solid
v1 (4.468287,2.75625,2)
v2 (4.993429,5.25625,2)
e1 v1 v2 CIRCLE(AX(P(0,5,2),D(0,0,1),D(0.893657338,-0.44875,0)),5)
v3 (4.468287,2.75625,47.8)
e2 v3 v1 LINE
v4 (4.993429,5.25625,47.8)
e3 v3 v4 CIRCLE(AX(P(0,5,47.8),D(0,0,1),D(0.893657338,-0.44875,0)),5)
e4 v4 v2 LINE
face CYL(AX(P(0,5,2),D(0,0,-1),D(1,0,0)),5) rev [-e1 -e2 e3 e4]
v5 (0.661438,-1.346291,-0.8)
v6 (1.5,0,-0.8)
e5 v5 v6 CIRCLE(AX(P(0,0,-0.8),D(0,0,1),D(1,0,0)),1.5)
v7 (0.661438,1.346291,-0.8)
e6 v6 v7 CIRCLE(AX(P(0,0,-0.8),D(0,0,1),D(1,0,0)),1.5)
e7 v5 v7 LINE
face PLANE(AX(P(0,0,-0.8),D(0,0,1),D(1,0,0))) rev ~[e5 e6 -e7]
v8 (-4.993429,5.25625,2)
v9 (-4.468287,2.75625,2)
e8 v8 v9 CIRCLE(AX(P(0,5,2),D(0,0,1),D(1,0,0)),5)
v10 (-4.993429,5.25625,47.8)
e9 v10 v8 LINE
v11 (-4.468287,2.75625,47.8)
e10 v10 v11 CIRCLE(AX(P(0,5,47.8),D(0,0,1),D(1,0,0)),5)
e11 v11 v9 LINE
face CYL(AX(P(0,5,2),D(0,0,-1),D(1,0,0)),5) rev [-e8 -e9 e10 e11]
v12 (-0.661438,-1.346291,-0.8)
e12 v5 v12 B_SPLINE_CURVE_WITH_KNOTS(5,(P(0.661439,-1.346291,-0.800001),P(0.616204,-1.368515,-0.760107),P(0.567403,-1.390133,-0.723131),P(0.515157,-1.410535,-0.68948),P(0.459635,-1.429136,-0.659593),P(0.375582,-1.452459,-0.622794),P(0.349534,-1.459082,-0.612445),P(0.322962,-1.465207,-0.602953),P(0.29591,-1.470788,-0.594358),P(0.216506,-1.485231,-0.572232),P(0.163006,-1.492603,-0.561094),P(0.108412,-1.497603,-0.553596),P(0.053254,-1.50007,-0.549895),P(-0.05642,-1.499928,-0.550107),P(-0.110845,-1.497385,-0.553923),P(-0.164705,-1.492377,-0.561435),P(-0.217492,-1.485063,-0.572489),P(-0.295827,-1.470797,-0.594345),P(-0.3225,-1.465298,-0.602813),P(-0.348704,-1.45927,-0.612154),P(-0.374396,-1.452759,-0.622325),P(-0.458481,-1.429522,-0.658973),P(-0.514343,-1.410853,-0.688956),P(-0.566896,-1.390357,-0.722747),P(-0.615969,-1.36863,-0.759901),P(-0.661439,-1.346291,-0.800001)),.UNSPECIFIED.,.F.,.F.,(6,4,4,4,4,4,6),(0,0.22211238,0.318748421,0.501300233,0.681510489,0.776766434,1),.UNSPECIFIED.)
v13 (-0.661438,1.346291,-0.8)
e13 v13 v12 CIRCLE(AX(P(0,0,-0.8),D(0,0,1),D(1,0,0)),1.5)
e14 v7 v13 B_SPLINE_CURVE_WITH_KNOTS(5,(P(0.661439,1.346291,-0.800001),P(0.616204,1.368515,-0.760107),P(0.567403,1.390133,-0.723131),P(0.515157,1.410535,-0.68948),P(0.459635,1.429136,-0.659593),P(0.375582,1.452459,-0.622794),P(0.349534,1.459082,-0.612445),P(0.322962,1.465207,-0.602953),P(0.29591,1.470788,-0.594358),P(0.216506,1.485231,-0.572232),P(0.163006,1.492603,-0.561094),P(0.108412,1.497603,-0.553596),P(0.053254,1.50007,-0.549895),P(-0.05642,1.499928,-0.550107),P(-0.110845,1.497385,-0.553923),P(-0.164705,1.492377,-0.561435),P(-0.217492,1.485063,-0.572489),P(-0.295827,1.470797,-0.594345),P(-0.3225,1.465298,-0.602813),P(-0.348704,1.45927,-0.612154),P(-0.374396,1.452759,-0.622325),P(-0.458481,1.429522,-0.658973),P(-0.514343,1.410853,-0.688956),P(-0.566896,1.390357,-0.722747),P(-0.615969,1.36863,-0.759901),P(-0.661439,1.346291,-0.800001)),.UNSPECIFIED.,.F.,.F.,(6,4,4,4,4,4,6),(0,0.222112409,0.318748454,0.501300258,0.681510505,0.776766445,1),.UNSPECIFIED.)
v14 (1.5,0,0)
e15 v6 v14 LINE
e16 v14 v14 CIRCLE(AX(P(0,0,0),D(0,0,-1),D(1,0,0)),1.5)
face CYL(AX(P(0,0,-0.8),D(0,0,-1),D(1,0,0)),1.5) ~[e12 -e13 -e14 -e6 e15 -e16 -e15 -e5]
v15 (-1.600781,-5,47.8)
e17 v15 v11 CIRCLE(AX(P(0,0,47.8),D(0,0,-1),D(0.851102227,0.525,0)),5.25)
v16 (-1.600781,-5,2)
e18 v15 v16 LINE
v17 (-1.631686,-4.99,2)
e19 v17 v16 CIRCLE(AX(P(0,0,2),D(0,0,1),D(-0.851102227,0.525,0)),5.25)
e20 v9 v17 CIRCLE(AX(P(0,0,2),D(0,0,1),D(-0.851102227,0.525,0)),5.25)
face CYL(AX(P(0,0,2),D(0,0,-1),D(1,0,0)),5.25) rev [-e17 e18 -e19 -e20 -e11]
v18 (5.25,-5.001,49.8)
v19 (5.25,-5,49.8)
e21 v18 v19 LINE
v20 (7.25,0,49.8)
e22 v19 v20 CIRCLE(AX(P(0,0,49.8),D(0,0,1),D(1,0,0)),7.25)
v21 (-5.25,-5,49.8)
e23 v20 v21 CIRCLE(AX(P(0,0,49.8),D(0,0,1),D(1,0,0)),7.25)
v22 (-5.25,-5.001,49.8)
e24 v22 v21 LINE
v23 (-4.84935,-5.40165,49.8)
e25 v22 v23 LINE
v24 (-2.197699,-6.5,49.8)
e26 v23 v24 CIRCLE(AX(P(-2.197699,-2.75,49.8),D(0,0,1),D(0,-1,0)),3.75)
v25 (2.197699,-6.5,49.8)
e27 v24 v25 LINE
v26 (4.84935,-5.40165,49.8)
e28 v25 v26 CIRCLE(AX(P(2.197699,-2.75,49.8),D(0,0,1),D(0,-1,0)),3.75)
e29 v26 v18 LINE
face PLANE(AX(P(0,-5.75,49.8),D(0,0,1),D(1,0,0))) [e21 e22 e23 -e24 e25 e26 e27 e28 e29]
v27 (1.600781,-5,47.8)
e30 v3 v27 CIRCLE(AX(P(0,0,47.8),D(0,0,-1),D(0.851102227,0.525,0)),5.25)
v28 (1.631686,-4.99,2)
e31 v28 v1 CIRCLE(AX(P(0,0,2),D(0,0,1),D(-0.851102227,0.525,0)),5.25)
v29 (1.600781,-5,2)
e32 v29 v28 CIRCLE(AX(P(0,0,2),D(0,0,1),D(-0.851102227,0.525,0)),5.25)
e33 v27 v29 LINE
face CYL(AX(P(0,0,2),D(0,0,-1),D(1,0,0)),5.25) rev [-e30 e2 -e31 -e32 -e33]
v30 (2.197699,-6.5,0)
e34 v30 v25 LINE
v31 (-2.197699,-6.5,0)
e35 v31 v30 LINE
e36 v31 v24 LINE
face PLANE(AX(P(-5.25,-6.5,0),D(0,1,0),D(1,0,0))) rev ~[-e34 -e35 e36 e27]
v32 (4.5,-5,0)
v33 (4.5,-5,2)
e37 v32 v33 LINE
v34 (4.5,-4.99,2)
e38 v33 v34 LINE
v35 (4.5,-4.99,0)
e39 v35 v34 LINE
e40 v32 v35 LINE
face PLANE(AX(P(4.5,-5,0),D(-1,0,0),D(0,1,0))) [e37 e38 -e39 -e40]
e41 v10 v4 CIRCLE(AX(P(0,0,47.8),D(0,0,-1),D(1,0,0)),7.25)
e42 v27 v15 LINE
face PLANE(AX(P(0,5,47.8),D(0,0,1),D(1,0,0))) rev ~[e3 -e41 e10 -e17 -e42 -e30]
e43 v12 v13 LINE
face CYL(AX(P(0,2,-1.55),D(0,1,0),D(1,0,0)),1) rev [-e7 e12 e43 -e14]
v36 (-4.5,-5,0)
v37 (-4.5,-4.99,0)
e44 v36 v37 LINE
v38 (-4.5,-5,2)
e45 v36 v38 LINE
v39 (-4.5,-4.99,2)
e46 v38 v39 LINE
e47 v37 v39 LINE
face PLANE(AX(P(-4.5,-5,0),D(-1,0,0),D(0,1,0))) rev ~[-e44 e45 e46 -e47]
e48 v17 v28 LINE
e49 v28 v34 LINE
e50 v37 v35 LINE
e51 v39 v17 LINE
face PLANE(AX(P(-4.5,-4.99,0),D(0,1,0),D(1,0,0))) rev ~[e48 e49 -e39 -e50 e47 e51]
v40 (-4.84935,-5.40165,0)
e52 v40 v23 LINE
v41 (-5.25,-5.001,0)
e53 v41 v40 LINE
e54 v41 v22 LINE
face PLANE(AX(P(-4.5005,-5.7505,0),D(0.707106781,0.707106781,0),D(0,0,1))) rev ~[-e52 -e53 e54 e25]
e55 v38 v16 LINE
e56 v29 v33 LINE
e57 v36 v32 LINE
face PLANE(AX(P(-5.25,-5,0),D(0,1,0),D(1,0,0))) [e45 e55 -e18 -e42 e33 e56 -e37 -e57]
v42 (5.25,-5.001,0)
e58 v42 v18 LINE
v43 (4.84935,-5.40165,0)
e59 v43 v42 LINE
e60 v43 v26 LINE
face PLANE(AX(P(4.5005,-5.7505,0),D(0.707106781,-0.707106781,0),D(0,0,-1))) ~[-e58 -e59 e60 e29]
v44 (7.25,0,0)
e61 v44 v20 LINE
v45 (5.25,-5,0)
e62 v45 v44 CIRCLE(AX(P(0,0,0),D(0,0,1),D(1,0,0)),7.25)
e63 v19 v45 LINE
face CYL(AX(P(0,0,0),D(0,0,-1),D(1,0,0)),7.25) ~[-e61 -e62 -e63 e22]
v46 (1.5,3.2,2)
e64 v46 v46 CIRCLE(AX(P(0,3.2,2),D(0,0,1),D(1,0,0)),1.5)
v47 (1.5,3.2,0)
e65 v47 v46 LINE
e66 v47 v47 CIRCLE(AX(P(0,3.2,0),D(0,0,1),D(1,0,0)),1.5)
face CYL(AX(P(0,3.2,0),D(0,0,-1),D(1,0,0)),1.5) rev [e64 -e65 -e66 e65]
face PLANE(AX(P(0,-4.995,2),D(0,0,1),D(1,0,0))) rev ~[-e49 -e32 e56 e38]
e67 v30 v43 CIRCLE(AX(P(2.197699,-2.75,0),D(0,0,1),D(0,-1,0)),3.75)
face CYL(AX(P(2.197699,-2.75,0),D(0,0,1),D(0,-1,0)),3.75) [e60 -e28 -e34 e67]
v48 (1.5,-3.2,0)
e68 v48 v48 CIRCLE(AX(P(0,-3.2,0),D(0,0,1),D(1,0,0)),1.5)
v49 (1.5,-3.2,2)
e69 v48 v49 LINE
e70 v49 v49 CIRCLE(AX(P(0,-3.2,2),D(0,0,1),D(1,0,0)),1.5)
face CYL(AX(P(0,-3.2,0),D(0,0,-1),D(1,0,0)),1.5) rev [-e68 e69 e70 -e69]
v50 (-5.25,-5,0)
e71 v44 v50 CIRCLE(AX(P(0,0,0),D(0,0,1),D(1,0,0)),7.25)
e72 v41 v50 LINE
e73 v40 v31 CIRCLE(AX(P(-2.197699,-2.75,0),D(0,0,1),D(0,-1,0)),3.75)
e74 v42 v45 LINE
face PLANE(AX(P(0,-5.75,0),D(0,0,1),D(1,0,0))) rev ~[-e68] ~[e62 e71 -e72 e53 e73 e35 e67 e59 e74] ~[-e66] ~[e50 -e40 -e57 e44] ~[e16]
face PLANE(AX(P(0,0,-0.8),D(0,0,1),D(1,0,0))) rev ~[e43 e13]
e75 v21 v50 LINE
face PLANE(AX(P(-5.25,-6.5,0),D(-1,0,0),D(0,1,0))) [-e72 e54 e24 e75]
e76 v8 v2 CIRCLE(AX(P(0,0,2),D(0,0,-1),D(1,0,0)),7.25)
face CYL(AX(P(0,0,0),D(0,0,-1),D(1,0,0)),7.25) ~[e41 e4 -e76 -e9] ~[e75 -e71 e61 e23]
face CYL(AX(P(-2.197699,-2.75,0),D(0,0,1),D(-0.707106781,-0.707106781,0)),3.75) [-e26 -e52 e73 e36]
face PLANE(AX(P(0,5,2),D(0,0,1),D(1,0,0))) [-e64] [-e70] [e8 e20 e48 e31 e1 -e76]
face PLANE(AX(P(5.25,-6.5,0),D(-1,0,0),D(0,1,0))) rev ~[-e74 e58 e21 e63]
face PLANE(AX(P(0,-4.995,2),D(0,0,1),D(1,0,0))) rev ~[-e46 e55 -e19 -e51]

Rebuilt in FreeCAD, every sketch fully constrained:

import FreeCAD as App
import Part
import Sketcher
from FreeCAD import Vector
Q = App.Units.Quantity


def edges_at(feature, points):
    """Names of the edges that pass closest to the given points."""
    edges = feature.Shape.Edges
    near = lambda p: min(range(len(edges)), key=lambda i: edges[i].distToShape(Part.Vertex(*p))[0])
    return sorted({f"Edge{near(p) + 1}" for p in points})

doc = App.newDocument("Part")
params = doc.addObject("Spreadsheet::Sheet", "Params")
for row, (alias, value) in enumerate([
    ("sketch1_diameter", "14.5 mm"),
    ("pad1_length", "49.8 mm"),
    ("sketch2_diameter", "3 mm"),
    ("pad2_length", "1 mm"),
    ("sketch3_diameter", "10.5 mm"),
    ("pocket1_length", "45.8 mm"),
    ("sketch4_diameter", "10 mm"),
    ("pocket2_length", "45.8 mm"),
    ("sketch5_width", "9 mm"),
    ("sketch5_height", "0.01 mm"),
    ("pocket3_length", "2 mm"),
    ("sketch6_width", "9 mm"),
    ("sketch6_height", "3 mm"),
    ("pocket4_length", "8 mm"),
    ("sketch7_width", "15 mm"),
    ("sketch7_height", "10 mm"),
    ("pocket5_length", "49.8 mm"),
    ("sketch8_width", "10.5 mm"),
    ("sketch8_height", "1.5 mm"),
    ("pad3_length", "49.8 mm"),
    ("chamfer_size", "1.499 mm"),
    ("fillet_radius", "3.75 mm"),
    ("sketch9_height", "0.1 mm"),
    ("sketch9_width", "2.75 mm"),
    ("pad4_length", "5 mm"),
    ("sketch10_height", "0.1 mm"),
    ("sketch10_width", "2.75 mm"),
    ("pad5_length", "5 mm"),
    ("sketch11_diameter", "2 mm"),
    ("pocket6_length", "4 mm"),
    ("sketch12_diameter", "3 mm"),
    ("pocket7_length", "2 mm"),
    ("sketch13_diameter", "3 mm"),
    ("pocket8_length", "2 mm"),
], start=1):
    params.set(f"A{row}", alias)
    params.set(f"B{row}", "=" + value)
    params.setAlias(f"B{row}", alias)

body = doc.addObject("PartDesign::Body", "Body")

# Sketch on XY plane
sketch1 = body.newObject("Sketcher::SketchObject", "Sketch")
sketch1.AttachmentSupport = (doc.getObject("XY_Plane"), [""])
sketch1.MapMode = "FlatFace"
sketch1.addGeometry(Part.Circle(Vector(0, 0, 0), Vector(0, 0, 1), 7), False)
sketch1.addConstraint([
    Sketcher.Constraint("Coincident", 0, 3, -1, 1),
    Sketcher.Constraint("Diameter", 0, Q("14.5 mm")),
])
sketch1.setExpression("Constraints[1]", "Params.sketch1_diameter")
pad1 = body.newObject("PartDesign::Pad", "Pad")
pad1.Profile = sketch1
pad1.setExpression("Length", "Params.pad1_length")

# Sketch on XY plane
sketch2 = body.newObject("Sketcher::SketchObject", "Sketch001")
sketch2.AttachmentSupport = (doc.getObject("XY_Plane"), [""])
sketch2.MapMode = "FlatFace"
sketch2.AttachmentOffset = App.Placement(Vector(0, 0, -0.8), App.Rotation())
sketch2.addGeometry(Part.Circle(Vector(0, 0, 0), Vector(0, 0, 1), 1.5), False)
sketch2.addConstraint([
    Sketcher.Constraint("Coincident", 0, 3, -1, 1),
    Sketcher.Constraint("Diameter", 0, Q("3 mm")),
])
sketch2.setExpression("Constraints[1]", "Params.sketch2_diameter")
pad2 = body.newObject("PartDesign::Pad", "Pad001")
pad2.Profile = sketch2
pad2.setExpression("Length", "Params.pad2_length")

# Sketch on XY plane
sketch3 = body.newObject("Sketcher::SketchObject", "Sketch002")
sketch3.AttachmentSupport = (doc.getObject("XY_Plane"), [""])
sketch3.MapMode = "FlatFace"
sketch3.AttachmentOffset = App.Placement(Vector(0, 0, 2), App.Rotation())
sketch3.addGeometry(Part.Circle(Vector(0, 0, 0), Vector(0, 0, 1), 5), False)
sketch3.addConstraint([
    Sketcher.Constraint("Coincident", 0, 3, -1, 1),
    Sketcher.Constraint("Diameter", 0, Q("10.5 mm")),
])
sketch3.setExpression("Constraints[1]", "Params.sketch3_diameter")
pocket1 = body.newObject("PartDesign::Pocket", "Pocket")
pocket1.Profile = sketch3
pocket1.setExpression("Length", "Params.pocket1_length")
pocket1.Reversed = True

# Sketch on XY plane
sketch4 = body.newObject("Sketcher::SketchObject", "Sketch003")
sketch4.AttachmentSupport = (doc.getObject("XY_Plane"), [""])
sketch4.MapMode = "FlatFace"
sketch4.AttachmentOffset = App.Placement(Vector(0, 0, 2), App.Rotation())
sketch4.addGeometry(Part.Circle(Vector(0, 5, 0), Vector(0, 0, 1), 5), False)
sketch4.addConstraint([
    Sketcher.Constraint("PointOnObject", 0, 3, -2),
    Sketcher.Constraint("Diameter", 0, Q("10 mm")),
    Sketcher.Constraint("DistanceY", -1, 1, 0, 3, Q("5 mm")),
])
sketch4.setExpression("Constraints[1]", "Params.sketch4_diameter")
pocket2 = body.newObject("PartDesign::Pocket", "Pocket001")
pocket2.Profile = sketch4
pocket2.setExpression("Length", "Params.pocket2_length")
pocket2.Reversed = True

# Sketch on XY plane
sketch5 = body.newObject("Sketcher::SketchObject", "Sketch004")
sketch5.AttachmentSupport = (doc.getObject("XY_Plane"), [""])
sketch5.MapMode = "FlatFace"
sketch5.addGeometry([
    Part.LineSegment(Vector(-4.5, -4.99, 0), Vector(-4.5, -5, 0)),
    Part.LineSegment(Vector(-4.5, -5, 0), Vector(4.5, -5, 0)),
    Part.LineSegment(Vector(4.5, -5, 0), Vector(4.5, -4.99, 0)),
    Part.LineSegment(Vector(4.5, -4.99, 0), Vector(-4.5, -4.99, 0)),
], False)
sketch5.addConstraint([
    Sketcher.Constraint("Coincident", 0, 2, 1, 1),
    Sketcher.Constraint("Coincident", 1, 2, 2, 1),
    Sketcher.Constraint("Coincident", 2, 2, 3, 1),
    Sketcher.Constraint("Coincident", 3, 2, 0, 1),
    Sketcher.Constraint("Vertical", 0),
    Sketcher.Constraint("Horizontal", 1),
    Sketcher.Constraint("Vertical", 2),
    Sketcher.Constraint("Horizontal", 3),
    Sketcher.Constraint("DistanceX", 1, 1, 1, 2, Q("9 mm")),
    Sketcher.Constraint("DistanceY", 0, 2, -1, 1, Q("5 mm")),
    Sketcher.Constraint("DistanceY", 0, 2, 0, 1, Q("0.01 mm")),
    Sketcher.Constraint("DistanceX", 0, 2, -1, 1, Q("4.5 mm")),
])
sketch5.setExpression("Constraints[8]", "Params.sketch5_width")
sketch5.setExpression("Constraints[10]", "Params.sketch5_height")
pocket3 = body.newObject("PartDesign::Pocket", "Pocket002")
pocket3.Profile = sketch5
pocket3.setExpression("Length", "Params.pocket3_length")
pocket3.Reversed = True

# Sketch on XY plane
sketch6 = body.newObject("Sketcher::SketchObject", "Sketch005")
sketch6.AttachmentSupport = (doc.getObject("XY_Plane"), [""])
sketch6.MapMode = "FlatFace"
sketch6.AttachmentOffset = App.Placement(Vector(0, 0, 2), App.Rotation())
sketch6.addGeometry([
    Part.LineSegment(Vector(-4.5, 1, 0), Vector(-4.5, -2, 0)),
    Part.LineSegment(Vector(-4.5, -2, 0), Vector(4.5, -2, 0)),
    Part.LineSegment(Vector(4.5, -2, 0), Vector(4.5, 1, 0)),
    Part.LineSegment(Vector(4.5, 1, 0), Vector(-4.5, 1, 0)),
], False)
sketch6.addConstraint([
    Sketcher.Constraint("Coincident", 0, 2, 1, 1),
    Sketcher.Constraint("Coincident", 1, 2, 2, 1),
    Sketcher.Constraint("Coincident", 2, 2, 3, 1),
    Sketcher.Constraint("Coincident", 3, 2, 0, 1),
    Sketcher.Constraint("Vertical", 0),
    Sketcher.Constraint("Horizontal", 1),
    Sketcher.Constraint("Vertical", 2),
    Sketcher.Constraint("Horizontal", 3),
    Sketcher.Constraint("DistanceX", 1, 1, 1, 2, Q("9 mm")),
    Sketcher.Constraint("DistanceY", 0, 2, 0, 1, Q("3 mm")),
    Sketcher.Constraint("DistanceY", 0, 2, -1, 1, Q("2 mm")),
    Sketcher.Constraint("DistanceX", 0, 2, -1, 1, Q("4.5 mm")),
])
sketch6.setExpression("Constraints[8]", "Params.sketch6_width")
sketch6.setExpression("Constraints[9]", "Params.sketch6_height")
pocket4 = body.newObject("PartDesign::Pocket", "Pocket003")
pocket4.Profile = sketch6
pocket4.setExpression("Length", "Params.pocket4_length")
pocket4.Reversed = True

# Sketch on XY plane
sketch7 = body.newObject("Sketcher::SketchObject", "Sketch006")
sketch7.AttachmentSupport = (doc.getObject("XY_Plane"), [""])
sketch7.MapMode = "FlatFace"
sketch7.addGeometry([
    Part.LineSegment(Vector(-8, -5, 0), Vector(-8, -15, 0)),
    Part.LineSegment(Vector(-8, -15, 0), Vector(8, -15, 0)),
    Part.LineSegment(Vector(8, -15, 0), Vector(8, -5, 0)),
    Part.LineSegment(Vector(8, -5, 0), Vector(-8, -5, 0)),
], False)
sketch7.addConstraint([
    Sketcher.Constraint("Coincident", 0, 2, 1, 1),
    Sketcher.Constraint("Coincident", 1, 2, 2, 1),
    Sketcher.Constraint("Coincident", 2, 2, 3, 1),
    Sketcher.Constraint("Coincident", 3, 2, 0, 1),
    Sketcher.Constraint("Vertical", 0),
    Sketcher.Constraint("Horizontal", 1),
    Sketcher.Constraint("Vertical", 2),
    Sketcher.Constraint("Horizontal", 3),
    Sketcher.Constraint("DistanceX", 1, 1, 1, 2, Q("15 mm")),
    Sketcher.Constraint("DistanceY", 0, 2, 0, 1, Q("10 mm")),
    Sketcher.Constraint("DistanceY", 0, 2, -1, 1, Q("15 mm")),
    Sketcher.Constraint("DistanceX", 0, 2, -1, 1, Q("7.5 mm")),
])
sketch7.setExpression("Constraints[8]", "Params.sketch7_width")
sketch7.setExpression("Constraints[9]", "Params.sketch7_height")
pocket5 = body.newObject("PartDesign::Pocket", "Pocket004")
pocket5.Profile = sketch7
pocket5.setExpression("Length", "Params.pocket5_length")
pocket5.Reversed = True

# Sketch on XY plane
sketch8 = body.newObject("Sketcher::SketchObject", "Sketch007")
sketch8.AttachmentSupport = (doc.getObject("XY_Plane"), [""])
sketch8.MapMode = "FlatFace"
sketch8.addGeometry([
    Part.LineSegment(Vector(-5.2, -5, 0), Vector(-5.2, -6.5, 0)),
    Part.LineSegment(Vector(-5.2, -6.5, 0), Vector(5.2, -6.5, 0)),
    Part.LineSegment(Vector(5.2, -6.5, 0), Vector(5.2, -5, 0)),
    Part.LineSegment(Vector(5.2, -5, 0), Vector(-5.2, -5, 0)),
], False)
sketch8.addConstraint([
    Sketcher.Constraint("Coincident", 0, 2, 1, 1),
    Sketcher.Constraint("Coincident", 1, 2, 2, 1),
    Sketcher.Constraint("Coincident", 2, 2, 3, 1),
    Sketcher.Constraint("Coincident", 3, 2, 0, 1),
    Sketcher.Constraint("Vertical", 0),
    Sketcher.Constraint("Horizontal", 1),
    Sketcher.Constraint("Vertical", 2),
    Sketcher.Constraint("Horizontal", 3),
    Sketcher.Constraint("DistanceX", 1, 1, 1, 2, Q("10.5 mm")),
    Sketcher.Constraint("DistanceY", 0, 2, 0, 1, Q("1.5 mm")),
    Sketcher.Constraint("DistanceY", 2, 2, -1, 1, Q("5 mm")),
    Sketcher.Constraint("DistanceX", 0, 2, -1, 1, Q("5.25 mm")),
])
sketch8.setExpression("Constraints[8]", "Params.sketch8_width")
sketch8.setExpression("Constraints[9]", "Params.sketch8_height")
pad3 = body.newObject("PartDesign::Pad", "Pad002")
pad3.Profile = sketch8
pad3.setExpression("Length", "Params.pad3_length")
doc.recompute()

chamfer = body.newObject("PartDesign::Chamfer", "Chamfer")
chamfer.Base = (pad3, edges_at(pad3, [(5.25, -6.5, 24.9), (-5.25, -6.5, 24.9)]))
chamfer.setExpression("Size", "Params.chamfer_size")
doc.recompute()

fillet = body.newObject("PartDesign::Fillet", "Fillet")
fillet.Base = (chamfer, edges_at(chamfer, [(3.751, -6.5, 24.9), (-3.751, -6.5, 24.9)]))
fillet.setExpression("Radius", "Params.fillet_radius")

# Sketch on XY plane
sketch9 = body.newObject("Sketcher::SketchObject", "Sketch008")
sketch9.AttachmentSupport = (doc.getObject("XY_Plane"), [""])
sketch9.MapMode = "FlatFace"
sketch9.AttachmentOffset = App.Placement(Vector(0, 0, 10), App.Rotation())
sketch9.addGeometry([
    Part.LineSegment(Vector(-5, -4.9, 0), Vector(-5, -5, 0)),
    Part.LineSegment(Vector(-5, -5, 0), Vector(-2.25, -5, 0)),
    Part.LineSegment(Vector(-2.25, -5, 0), Vector(-2.25, -4.9, 0)),
    Part.LineSegment(Vector(-2.25, -4.9, 0), Vector(-5, -4.9, 0)),
], False)
sketch9.addConstraint([
    Sketcher.Constraint("Coincident", 0, 2, 1, 1),
    Sketcher.Constraint("Coincident", 1, 2, 2, 1),
    Sketcher.Constraint("Coincident", 2, 2, 3, 1),
    Sketcher.Constraint("Coincident", 3, 2, 0, 1),
    Sketcher.Constraint("Vertical", 0),
    Sketcher.Constraint("Horizontal", 1),
    Sketcher.Constraint("Vertical", 2),
    Sketcher.Constraint("Horizontal", 3),
    Sketcher.Constraint("DistanceY", 0, 2, 0, 1, Q("0.1 mm")),
    Sketcher.Constraint("DistanceX", 0, 2, -1, 1, Q("5 mm")),
    Sketcher.Constraint("DistanceY", 0, 2, -1, 1, Q("5 mm")),
    Sketcher.Constraint("DistanceX", 1, 1, 1, 2, Q("2.75 mm")),
])
sketch9.setExpression("Constraints[8]", "Params.sketch9_height")
sketch9.setExpression("Constraints[11]", "Params.sketch9_width")
pad4 = body.newObject("PartDesign::Pad", "Pad003")
pad4.Profile = sketch9
pad4.setExpression("Length", "Params.pad4_length")

# Sketch on XY plane
sketch10 = body.newObject("Sketcher::SketchObject", "Sketch009")
sketch10.AttachmentSupport = (doc.getObject("XY_Plane"), [""])
sketch10.MapMode = "FlatFace"
sketch10.AttachmentOffset = App.Placement(Vector(0, 0, 10), App.Rotation())
sketch10.addGeometry([
    Part.LineSegment(Vector(2.25, -4.9, 0), Vector(2.25, -5, 0)),
    Part.LineSegment(Vector(2.25, -5, 0), Vector(5, -5, 0)),
    Part.LineSegment(Vector(5, -5, 0), Vector(5, -4.9, 0)),
    Part.LineSegment(Vector(5, -4.9, 0), Vector(2.25, -4.9, 0)),
], False)
sketch10.addConstraint([
    Sketcher.Constraint("Coincident", 0, 2, 1, 1),
    Sketcher.Constraint("Coincident", 1, 2, 2, 1),
    Sketcher.Constraint("Coincident", 2, 2, 3, 1),
    Sketcher.Constraint("Coincident", 3, 2, 0, 1),
    Sketcher.Constraint("Vertical", 0),
    Sketcher.Constraint("Horizontal", 1),
    Sketcher.Constraint("Vertical", 2),
    Sketcher.Constraint("Horizontal", 3),
    Sketcher.Constraint("DistanceY", 0, 2, 0, 1, Q("0.1 mm")),
    Sketcher.Constraint("DistanceY", 0, 2, -1, 1, Q("5 mm")),
    Sketcher.Constraint("DistanceX", -1, 1, 1, 2, Q("5 mm")),
    Sketcher.Constraint("DistanceX", 1, 1, 1, 2, Q("2.75 mm")),
])
sketch10.setExpression("Constraints[8]", "Params.sketch10_height")
sketch10.setExpression("Constraints[11]", "Params.sketch10_width")
pad5 = body.newObject("PartDesign::Pad", "Pad004")
pad5.Profile = sketch10
pad5.setExpression("Length", "Params.pad5_length")

# Sketch on XZ plane
sketch11 = body.newObject("Sketcher::SketchObject", "Sketch010")
sketch11.AttachmentSupport = (doc.getObject("XZ_Plane"), [""])
sketch11.MapMode = "FlatFace"
sketch11.AttachmentOffset = App.Placement(Vector(0, 0, -2), App.Rotation())
sketch11.addGeometry(Part.Circle(Vector(0, -1.6, 0), Vector(0, 0, 1), 1), False)
sketch11.addConstraint([
    Sketcher.Constraint("PointOnObject", 0, 3, -2),
    Sketcher.Constraint("Diameter", 0, Q("2 mm")),
    Sketcher.Constraint("DistanceY", 0, 3, -1, 1, Q("1.55 mm")),
])
sketch11.setExpression("Constraints[1]", "Params.sketch11_diameter")
pocket6 = body.newObject("PartDesign::Pocket", "Pocket005")
pocket6.Profile = sketch11
pocket6.setExpression("Length", "Params.pocket6_length")
pocket6.Reversed = True

# Sketch on XY plane
sketch12 = body.newObject("Sketcher::SketchObject", "Sketch011")
sketch12.AttachmentSupport = (doc.getObject("XY_Plane"), [""])
sketch12.MapMode = "FlatFace"
sketch12.addGeometry(Part.Circle(Vector(0, -3.2, 0), Vector(0, 0, 1), 1.5), False)
sketch12.addConstraint([
    Sketcher.Constraint("PointOnObject", 0, 3, -2),
    Sketcher.Constraint("Diameter", 0, Q("3 mm")),
    Sketcher.Constraint("DistanceY", 0, 3, -1, 1, Q("3.2 mm")),
])
sketch12.setExpression("Constraints[1]", "Params.sketch12_diameter")
pocket7 = body.newObject("PartDesign::Pocket", "Pocket006")
pocket7.Profile = sketch12
pocket7.setExpression("Length", "Params.pocket7_length")
pocket7.Reversed = True

# Sketch on XY plane
sketch13 = body.newObject("Sketcher::SketchObject", "Sketch012")
sketch13.AttachmentSupport = (doc.getObject("XY_Plane"), [""])
sketch13.MapMode = "FlatFace"
sketch13.addGeometry(Part.Circle(Vector(0, 3.2, 0), Vector(0, 0, 1), 1.5), False)
sketch13.addConstraint([
    Sketcher.Constraint("PointOnObject", 0, 3, -2),
    Sketcher.Constraint("Diameter", 0, Q("3 mm")),
    Sketcher.Constraint("DistanceY", -1, 1, 0, 3, Q("3.2 mm")),
])
sketch13.setExpression("Constraints[1]", "Params.sketch13_diameter")
pocket8 = body.newObject("PartDesign::Pocket", "Pocket007")
pocket8.Profile = sketch13
pocket8.setExpression("Length", "Params.pocket8_length")
pocket8.Reversed = True

doc.recompute()
